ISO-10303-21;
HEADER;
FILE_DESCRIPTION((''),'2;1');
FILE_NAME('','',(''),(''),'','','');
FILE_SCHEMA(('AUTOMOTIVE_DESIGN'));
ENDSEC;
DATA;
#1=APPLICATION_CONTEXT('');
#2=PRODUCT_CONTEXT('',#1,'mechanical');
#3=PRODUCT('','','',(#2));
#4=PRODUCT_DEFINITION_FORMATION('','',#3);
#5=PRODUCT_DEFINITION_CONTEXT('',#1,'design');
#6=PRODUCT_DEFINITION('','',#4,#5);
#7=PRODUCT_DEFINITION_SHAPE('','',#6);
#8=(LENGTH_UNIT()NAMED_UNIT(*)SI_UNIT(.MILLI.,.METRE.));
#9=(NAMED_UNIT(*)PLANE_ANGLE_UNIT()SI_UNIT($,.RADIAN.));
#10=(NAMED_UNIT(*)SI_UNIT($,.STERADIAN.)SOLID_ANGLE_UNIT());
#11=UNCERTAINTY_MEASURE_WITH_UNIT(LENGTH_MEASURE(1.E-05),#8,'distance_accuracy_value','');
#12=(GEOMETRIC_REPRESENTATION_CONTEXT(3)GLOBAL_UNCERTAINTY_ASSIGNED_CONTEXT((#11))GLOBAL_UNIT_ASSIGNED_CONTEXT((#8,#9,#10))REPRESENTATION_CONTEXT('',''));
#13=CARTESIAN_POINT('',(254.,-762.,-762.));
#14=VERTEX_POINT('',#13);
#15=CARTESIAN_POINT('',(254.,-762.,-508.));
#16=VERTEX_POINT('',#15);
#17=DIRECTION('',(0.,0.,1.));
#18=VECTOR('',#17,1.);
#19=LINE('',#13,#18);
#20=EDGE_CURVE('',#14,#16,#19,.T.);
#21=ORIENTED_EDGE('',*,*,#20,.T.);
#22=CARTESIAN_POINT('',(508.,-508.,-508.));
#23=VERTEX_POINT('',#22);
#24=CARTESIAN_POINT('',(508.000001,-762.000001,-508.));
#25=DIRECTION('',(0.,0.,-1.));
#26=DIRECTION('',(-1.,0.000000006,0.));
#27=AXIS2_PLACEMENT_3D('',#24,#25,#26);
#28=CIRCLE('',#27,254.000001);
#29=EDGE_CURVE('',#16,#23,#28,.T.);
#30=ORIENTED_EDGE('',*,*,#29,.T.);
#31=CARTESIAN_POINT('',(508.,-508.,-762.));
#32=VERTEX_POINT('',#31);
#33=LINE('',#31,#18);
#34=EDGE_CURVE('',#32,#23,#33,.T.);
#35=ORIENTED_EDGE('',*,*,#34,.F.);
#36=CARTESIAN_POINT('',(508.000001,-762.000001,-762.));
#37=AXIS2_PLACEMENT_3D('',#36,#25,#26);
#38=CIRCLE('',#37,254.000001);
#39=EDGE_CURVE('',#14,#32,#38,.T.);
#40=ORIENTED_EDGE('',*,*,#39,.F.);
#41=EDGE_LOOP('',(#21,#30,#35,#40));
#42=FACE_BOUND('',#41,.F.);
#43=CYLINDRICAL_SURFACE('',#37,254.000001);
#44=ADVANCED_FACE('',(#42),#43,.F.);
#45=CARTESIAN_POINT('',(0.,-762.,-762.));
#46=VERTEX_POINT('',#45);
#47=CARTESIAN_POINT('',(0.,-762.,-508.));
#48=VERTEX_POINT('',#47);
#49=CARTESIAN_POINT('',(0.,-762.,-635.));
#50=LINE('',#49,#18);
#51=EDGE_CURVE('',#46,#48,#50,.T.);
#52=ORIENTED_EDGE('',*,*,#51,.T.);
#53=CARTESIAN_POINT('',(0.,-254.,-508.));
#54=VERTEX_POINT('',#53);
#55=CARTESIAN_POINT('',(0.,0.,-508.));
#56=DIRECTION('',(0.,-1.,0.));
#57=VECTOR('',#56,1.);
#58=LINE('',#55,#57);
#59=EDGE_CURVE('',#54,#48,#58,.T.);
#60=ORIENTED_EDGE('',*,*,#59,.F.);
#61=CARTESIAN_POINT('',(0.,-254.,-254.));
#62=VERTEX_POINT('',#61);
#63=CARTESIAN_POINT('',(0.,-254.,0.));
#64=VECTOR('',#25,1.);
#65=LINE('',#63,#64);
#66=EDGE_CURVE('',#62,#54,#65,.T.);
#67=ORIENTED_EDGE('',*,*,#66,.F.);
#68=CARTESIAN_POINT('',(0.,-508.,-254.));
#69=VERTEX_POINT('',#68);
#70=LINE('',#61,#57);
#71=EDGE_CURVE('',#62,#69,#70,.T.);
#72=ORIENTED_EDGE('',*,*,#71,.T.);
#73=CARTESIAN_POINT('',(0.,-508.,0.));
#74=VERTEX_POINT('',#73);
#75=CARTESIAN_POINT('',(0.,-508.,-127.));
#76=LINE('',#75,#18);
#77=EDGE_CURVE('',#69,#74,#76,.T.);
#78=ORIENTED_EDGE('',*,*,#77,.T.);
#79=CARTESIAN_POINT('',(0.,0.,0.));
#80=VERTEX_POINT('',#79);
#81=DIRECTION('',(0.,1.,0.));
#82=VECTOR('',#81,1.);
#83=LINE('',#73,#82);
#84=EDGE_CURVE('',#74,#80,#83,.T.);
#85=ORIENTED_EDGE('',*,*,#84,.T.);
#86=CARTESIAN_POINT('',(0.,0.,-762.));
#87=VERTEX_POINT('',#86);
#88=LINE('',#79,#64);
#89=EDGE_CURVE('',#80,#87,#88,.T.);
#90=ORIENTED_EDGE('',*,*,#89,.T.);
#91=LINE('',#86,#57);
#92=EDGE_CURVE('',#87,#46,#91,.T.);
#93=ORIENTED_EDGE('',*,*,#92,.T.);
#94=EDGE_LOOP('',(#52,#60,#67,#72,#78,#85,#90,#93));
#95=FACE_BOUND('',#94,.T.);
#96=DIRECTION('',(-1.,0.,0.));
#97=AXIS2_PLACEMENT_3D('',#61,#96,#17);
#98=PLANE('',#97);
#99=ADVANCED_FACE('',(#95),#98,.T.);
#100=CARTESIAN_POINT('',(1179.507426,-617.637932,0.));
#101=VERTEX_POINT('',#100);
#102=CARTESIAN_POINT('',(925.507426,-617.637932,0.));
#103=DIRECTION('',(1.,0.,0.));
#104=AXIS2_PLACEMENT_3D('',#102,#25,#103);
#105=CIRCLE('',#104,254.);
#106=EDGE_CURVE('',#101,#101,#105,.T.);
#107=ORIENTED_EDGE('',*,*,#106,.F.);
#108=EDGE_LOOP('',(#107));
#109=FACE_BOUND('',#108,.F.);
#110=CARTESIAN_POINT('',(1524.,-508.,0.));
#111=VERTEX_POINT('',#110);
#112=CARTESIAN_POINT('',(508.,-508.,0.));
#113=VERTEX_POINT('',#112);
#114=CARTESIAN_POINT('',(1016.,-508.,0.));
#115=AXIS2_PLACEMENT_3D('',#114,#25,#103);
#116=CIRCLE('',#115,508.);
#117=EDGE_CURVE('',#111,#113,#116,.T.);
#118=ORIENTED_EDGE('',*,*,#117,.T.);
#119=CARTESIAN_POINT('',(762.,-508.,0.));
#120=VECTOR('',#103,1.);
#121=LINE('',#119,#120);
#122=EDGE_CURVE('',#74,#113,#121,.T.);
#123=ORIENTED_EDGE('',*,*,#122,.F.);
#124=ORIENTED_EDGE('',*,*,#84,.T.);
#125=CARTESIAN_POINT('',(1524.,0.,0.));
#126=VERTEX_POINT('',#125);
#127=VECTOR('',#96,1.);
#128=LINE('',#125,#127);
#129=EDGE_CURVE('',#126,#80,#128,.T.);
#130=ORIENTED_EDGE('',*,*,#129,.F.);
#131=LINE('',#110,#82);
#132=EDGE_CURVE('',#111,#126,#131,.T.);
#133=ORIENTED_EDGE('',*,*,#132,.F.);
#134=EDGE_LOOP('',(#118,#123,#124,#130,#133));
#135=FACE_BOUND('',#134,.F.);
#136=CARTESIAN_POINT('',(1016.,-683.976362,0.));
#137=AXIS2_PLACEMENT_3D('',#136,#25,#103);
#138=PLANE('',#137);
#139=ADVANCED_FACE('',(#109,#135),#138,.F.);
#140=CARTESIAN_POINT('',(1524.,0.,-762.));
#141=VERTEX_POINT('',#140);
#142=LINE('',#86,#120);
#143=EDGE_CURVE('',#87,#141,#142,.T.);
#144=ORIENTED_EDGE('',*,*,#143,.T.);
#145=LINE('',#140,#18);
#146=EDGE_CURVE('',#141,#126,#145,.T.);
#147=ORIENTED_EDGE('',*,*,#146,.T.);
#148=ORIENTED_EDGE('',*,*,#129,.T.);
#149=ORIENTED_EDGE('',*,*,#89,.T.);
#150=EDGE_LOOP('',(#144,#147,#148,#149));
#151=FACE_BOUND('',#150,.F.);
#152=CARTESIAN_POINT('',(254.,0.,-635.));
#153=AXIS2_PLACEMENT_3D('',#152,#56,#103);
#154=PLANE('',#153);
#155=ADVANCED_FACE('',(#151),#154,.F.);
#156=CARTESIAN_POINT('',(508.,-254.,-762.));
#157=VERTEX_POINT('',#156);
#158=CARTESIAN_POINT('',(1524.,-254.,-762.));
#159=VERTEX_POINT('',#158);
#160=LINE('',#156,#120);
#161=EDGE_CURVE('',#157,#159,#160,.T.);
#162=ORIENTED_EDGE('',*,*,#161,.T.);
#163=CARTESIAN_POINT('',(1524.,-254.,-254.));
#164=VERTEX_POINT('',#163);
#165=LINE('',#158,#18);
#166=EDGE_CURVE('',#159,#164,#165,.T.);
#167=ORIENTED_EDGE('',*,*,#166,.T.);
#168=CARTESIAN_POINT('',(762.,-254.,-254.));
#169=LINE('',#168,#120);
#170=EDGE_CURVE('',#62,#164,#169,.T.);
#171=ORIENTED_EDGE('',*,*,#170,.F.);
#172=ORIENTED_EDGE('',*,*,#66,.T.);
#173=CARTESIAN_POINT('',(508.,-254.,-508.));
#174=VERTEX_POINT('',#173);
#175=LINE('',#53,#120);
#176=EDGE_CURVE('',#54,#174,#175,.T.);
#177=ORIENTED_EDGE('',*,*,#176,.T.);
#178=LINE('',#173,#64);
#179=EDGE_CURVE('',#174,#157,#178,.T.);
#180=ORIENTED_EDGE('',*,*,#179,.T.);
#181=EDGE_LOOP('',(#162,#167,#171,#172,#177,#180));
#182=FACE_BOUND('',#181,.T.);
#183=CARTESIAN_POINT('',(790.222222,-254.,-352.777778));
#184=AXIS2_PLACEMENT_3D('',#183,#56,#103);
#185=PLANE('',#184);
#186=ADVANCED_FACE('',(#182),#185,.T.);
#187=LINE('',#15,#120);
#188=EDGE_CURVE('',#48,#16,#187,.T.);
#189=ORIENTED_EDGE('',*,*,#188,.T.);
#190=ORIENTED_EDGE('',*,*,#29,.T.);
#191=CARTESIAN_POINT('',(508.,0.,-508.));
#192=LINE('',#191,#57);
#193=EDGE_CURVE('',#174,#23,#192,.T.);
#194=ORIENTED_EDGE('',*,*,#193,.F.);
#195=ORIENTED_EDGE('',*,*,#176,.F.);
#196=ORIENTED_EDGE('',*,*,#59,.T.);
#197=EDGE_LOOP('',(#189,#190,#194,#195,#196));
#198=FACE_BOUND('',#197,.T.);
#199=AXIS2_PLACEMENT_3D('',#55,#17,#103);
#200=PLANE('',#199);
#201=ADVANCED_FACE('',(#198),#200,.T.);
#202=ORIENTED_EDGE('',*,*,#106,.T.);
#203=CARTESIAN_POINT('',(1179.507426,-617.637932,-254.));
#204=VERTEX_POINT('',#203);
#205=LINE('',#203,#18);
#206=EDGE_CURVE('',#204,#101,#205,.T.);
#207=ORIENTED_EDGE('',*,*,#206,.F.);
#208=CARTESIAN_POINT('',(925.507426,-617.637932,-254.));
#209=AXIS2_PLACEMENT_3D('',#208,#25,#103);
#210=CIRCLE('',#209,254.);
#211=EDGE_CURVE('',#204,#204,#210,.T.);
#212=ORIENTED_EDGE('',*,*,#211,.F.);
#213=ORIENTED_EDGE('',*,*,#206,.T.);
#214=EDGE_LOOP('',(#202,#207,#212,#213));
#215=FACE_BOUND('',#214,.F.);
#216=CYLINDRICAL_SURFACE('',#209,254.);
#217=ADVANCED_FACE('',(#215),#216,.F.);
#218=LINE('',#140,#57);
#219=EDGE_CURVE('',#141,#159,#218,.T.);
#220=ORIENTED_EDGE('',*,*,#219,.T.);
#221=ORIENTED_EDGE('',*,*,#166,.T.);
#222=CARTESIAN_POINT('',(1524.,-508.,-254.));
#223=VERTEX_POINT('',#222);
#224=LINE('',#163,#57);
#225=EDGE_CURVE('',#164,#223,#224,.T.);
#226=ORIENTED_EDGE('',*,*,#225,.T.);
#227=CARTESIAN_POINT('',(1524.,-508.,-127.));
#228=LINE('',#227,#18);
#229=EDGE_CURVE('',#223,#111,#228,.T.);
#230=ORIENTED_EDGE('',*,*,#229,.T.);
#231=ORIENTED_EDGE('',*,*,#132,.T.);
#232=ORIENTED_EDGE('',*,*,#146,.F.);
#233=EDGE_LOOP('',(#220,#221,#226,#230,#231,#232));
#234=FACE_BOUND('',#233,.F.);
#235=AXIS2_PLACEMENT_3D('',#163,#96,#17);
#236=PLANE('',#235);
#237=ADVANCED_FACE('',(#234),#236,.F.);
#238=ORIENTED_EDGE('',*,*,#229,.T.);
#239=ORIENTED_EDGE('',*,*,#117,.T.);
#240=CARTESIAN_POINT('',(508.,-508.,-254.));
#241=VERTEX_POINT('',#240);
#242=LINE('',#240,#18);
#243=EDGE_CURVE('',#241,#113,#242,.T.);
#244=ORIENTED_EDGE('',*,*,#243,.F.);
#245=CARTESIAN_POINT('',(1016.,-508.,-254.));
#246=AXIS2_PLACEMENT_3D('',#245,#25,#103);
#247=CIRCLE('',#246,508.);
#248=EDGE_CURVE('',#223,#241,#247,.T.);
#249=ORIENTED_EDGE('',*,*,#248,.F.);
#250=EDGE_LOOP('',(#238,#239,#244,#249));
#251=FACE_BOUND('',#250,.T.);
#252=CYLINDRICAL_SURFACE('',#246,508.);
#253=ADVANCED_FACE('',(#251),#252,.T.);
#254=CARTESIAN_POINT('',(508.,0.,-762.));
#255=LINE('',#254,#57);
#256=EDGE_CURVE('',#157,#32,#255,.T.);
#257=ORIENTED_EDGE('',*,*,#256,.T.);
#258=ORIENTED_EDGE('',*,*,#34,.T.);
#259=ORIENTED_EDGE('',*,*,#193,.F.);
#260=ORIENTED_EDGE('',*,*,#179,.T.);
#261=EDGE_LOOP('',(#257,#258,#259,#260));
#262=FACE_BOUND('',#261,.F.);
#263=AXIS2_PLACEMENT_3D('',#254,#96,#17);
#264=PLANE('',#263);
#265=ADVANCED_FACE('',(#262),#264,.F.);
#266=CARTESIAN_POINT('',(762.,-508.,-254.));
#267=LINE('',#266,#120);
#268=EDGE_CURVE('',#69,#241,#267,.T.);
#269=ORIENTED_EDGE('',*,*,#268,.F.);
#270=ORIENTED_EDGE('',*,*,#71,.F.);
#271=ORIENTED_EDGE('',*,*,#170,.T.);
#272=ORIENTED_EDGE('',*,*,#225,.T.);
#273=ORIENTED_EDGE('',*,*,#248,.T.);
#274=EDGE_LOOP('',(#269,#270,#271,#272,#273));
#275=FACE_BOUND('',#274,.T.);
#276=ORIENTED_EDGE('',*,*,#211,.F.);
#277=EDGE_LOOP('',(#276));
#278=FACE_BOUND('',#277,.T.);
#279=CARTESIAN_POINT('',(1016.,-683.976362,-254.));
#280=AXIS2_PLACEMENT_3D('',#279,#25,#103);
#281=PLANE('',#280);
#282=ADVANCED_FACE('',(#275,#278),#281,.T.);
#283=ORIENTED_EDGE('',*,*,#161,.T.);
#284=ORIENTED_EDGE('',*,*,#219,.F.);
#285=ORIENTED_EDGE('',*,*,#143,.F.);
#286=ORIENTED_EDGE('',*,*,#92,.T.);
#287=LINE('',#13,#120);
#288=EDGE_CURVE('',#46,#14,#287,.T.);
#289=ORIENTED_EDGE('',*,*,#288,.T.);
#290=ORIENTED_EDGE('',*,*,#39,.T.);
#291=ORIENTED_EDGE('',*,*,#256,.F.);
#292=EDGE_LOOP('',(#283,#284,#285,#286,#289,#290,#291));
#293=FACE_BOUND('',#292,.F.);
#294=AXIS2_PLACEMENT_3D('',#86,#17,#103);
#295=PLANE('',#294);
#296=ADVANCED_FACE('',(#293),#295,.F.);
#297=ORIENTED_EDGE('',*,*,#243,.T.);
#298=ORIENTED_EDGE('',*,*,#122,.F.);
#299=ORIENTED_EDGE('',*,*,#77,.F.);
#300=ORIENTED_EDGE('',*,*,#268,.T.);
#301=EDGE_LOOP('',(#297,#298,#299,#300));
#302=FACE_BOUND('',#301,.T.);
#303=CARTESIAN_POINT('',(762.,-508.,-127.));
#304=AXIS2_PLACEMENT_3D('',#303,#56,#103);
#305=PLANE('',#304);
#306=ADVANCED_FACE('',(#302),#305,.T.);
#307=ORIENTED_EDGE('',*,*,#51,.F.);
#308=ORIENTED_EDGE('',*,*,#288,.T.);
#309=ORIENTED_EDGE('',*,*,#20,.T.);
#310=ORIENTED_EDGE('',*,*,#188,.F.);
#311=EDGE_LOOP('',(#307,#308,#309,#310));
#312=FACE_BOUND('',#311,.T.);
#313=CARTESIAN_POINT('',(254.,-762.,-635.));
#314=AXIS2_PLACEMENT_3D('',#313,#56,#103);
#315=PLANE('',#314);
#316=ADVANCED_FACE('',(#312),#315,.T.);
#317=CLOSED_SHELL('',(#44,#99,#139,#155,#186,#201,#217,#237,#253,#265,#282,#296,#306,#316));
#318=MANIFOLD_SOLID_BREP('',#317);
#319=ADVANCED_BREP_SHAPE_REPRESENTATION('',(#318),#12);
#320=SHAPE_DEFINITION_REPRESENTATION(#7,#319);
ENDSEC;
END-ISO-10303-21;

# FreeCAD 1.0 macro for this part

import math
import FreeCAD as App
import Part
import Sketcher

V = App.Vector
Q = App.Units.Quantity

doc = App.newDocument("Part")
body = doc.addObject("PartDesign::Body", "Body")

sketch1 = body.newObject("Sketcher::SketchObject", "Sketch")
sketch1.AttachmentSupport = (doc.getObject("XZ_Plane"), [""])
sketch1.MapMode = "FlatFace"
sketch1.addGeometry([
    Part.LineSegment(V(0, 0, 0), V(0, -508, 0)),
    Part.LineSegment(V(0, -508, 0), V(508, -508, 0)),
    Part.LineSegment(V(508, -508, 0), V(508, -762, 0)),
    Part.LineSegment(V(508, -762, 0), V(1524, -762, 0)),
    Part.LineSegment(V(1524, -762, 0), V(1524, 0, 0)),
    Part.LineSegment(V(1524, 0, 0), V(0, 0, 0)),
], False)
sketch1.addConstraint([
    Sketcher.Constraint("Coincident", 0, 2, 1, 1),
    Sketcher.Constraint("Coincident", 1, 2, 2, 1),
    Sketcher.Constraint("Coincident", 2, 2, 3, 1),
    Sketcher.Constraint("Coincident", 3, 2, 4, 1),
    Sketcher.Constraint("Coincident", 4, 2, 5, 1),
    Sketcher.Constraint("Coincident", 5, 2, 0, 1),
    Sketcher.Constraint("Vertical", 0),
    Sketcher.Constraint("Horizontal", 1),
    Sketcher.Constraint("Vertical", 2),
    Sketcher.Constraint("Horizontal", 3),
    Sketcher.Constraint("Vertical", 4),
    Sketcher.Constraint("Horizontal", 5),
    Sketcher.Constraint("Coincident", 5, 2, -1, 1),
    Sketcher.Constraint("Equal", 1, 0),
    Sketcher.Constraint("DistanceX", 1, 1, 1, 2, Q("20 in")),
    Sketcher.Constraint("DistanceX", 3, 1, 3, 2, Q("40 in")),
    Sketcher.Constraint("DistanceY", 2, 2, 2, 1, Q("10 in")),
])
pad1 = body.newObject("PartDesign::Pad", "Pad")
pad1.Profile = sketch1
pad1.Length = Q("10 in")

sketch2 = body.newObject("Sketcher::SketchObject", "Sketch001")
sketch2.AttachmentSupport = (doc.getObject("XZ_Plane"), [""])
sketch2.MapMode = "FlatFace"
sketch2.addGeometry([
    Part.LineSegment(V(0, -508, 0), V(0, -762, 0)),
    Part.LineSegment(V(0, -762, 0), V(508, -762, 0)),
    Part.LineSegment(V(508, -762, 0), V(508, -508, 0)),
    Part.LineSegment(V(508, -508, 0), V(0, -508, 0)),
], False)
sketch2.addConstraint([
    Sketcher.Constraint("Coincident", 0, 2, 1, 1),
    Sketcher.Constraint("Coincident", 1, 2, 2, 1),
    Sketcher.Constraint("Coincident", 2, 2, 3, 1),
    Sketcher.Constraint("Coincident", 3, 2, 0, 1),
    Sketcher.Constraint("Vertical", 0),
    Sketcher.Constraint("Horizontal", 1),
    Sketcher.Constraint("Vertical", 2),
    Sketcher.Constraint("Horizontal", 3),
    Sketcher.Constraint("PointOnObject", 0, 2, -2),
    Sketcher.Constraint("DistanceX", 1, 1, 1, 2, Q("20 in")),
    Sketcher.Constraint("DistanceY", 0, 2, 0, 1, Q("10 in")),
    Sketcher.Constraint("DistanceY", 0, 2, -1, 1, Q("30 in")),
])
pad2 = body.newObject("PartDesign::Pad", "Pad001")
pad2.Profile = sketch2
pad2.Length = Q("30 in")

sketch3 = body.newObject("Sketcher::SketchObject", "Sketch002")
sketch3.AttachmentSupport = (doc.getObject("XY_Plane"), [""])
sketch3.MapMode = "FlatFace"
sketch3.AttachmentOffset = App.Placement(V(0, 0, -30 * 25.4), App.Rotation())
sketch3.addGeometry([
    Part.ArcOfCircle(Part.Circle(V(508, -762, 0), V(0, 0, 1), 254), math.radians(90), math.radians(180)),
    Part.LineSegment(V(508, -508, 0), V(508, -762, 0)),
    Part.LineSegment(V(508, -762, 0), V(254, -762, 0)),
], False)
sketch3.addConstraint([
    Sketcher.Constraint("Coincident", 0, 1, 1, 1),
    Sketcher.Constraint("Coincident", 1, 2, 2, 1),
    Sketcher.Constraint("Coincident", 2, 2, 0, 2),
    Sketcher.Constraint("Vertical", 1),
    Sketcher.Constraint("Horizontal", 2),
    Sketcher.Constraint("Coincident", 1, 2, 0, 3),
    Sketcher.Constraint("Radius", 0, Q("10.0000001 in")),
    Sketcher.Constraint("DistanceX", -1, 1, 0, 3, Q("20.0000001 in")),
    Sketcher.Constraint("DistanceY", 0, 3, -1, 1, Q("30.0000001 in")),
])
pocket1 = body.newObject("PartDesign::Pocket", "Pocket")
pocket1.Profile = sketch3
pocket1.Length = Q("10 in")
pocket1.Reversed = True

sketch4 = body.newObject("Sketcher::SketchObject", "Sketch003")
sketch4.AttachmentSupport = (doc.getObject("XZ_Plane"), [""])
sketch4.MapMode = "FlatFace"
sketch4.AttachmentOffset = App.Placement(V(0, 0, 10 * 25.4), App.Rotation())
sketch4.addGeometry([
    Part.LineSegment(V(0, 0, 0), V(0, -254, 0)),
    Part.LineSegment(V(0, -254, 0), V(1524, -254, 0)),
    Part.LineSegment(V(1524, -254, 0), V(1524, 0, 0)),
    Part.LineSegment(V(1524, 0, 0), V(0, 0, 0)),
], False)
sketch4.addConstraint([
    Sketcher.Constraint("Coincident", 0, 2, 1, 1),
    Sketcher.Constraint("Coincident", 1, 2, 2, 1),
    Sketcher.Constraint("Coincident", 2, 2, 3, 1),
    Sketcher.Constraint("Coincident", 3, 2, 0, 1),
    Sketcher.Constraint("Vertical", 0),
    Sketcher.Constraint("Horizontal", 1),
    Sketcher.Constraint("Vertical", 2),
    Sketcher.Constraint("Horizontal", 3),
    Sketcher.Constraint("Coincident", 3, 2, -1, 1),
    Sketcher.Constraint("DistanceX", 1, 1, 1, 2, Q("60 in")),
    Sketcher.Constraint("DistanceY", 0, 2, 0, 1, Q("10 in")),
])
pad3 = body.newObject("PartDesign::Pad", "Pad002")
pad3.Profile = sketch4
pad3.Length = Q("10 in")

sketch5 = body.newObject("Sketcher::SketchObject", "Sketch004")
sketch5.AttachmentSupport = (doc.getObject("XY_Plane"), [""])
sketch5.MapMode = "FlatFace"
sketch5.AttachmentOffset = App.Placement(V(0, 0, -10 * 25.4), App.Rotation())
sketch5.addGeometry([
    Part.LineSegment(V(508, -508, 0), V(1524, -508, 0)),
    Part.ArcOfCircle(Part.Circle(V(1016, -508, 0), V(0, 0, 1), 508), math.radians(180), math.radians(360)),
], False)
sketch5.addConstraint([
    Sketcher.Constraint("Coincident", 0, 1, 1, 1),
    Sketcher.Constraint("Coincident", 1, 2, 0, 2),
    Sketcher.Constraint("Horizontal", 0),
    Sketcher.Constraint("Horizontal", 1, 3, 0, 1),
    Sketcher.Constraint("Radius", 1, Q("20 in")),
    Sketcher.Constraint("DistanceX", -1, 1, 1, 3, Q("40 in")),
    Sketcher.Constraint("DistanceY", 1, 3, -1, 1, Q("20 in")),
])
pad4 = body.newObject("PartDesign::Pad", "Pad003")
pad4.Profile = sketch5
pad4.Length = Q("10 in")

sketch6 = body.newObject("Sketcher::SketchObject", "Sketch005")
sketch6.AttachmentSupport = (doc.getObject("XY_Plane"), [""])
sketch6.MapMode = "FlatFace"
sketch6.AttachmentOffset = App.Placement(V(0, 0, -10 * 25.4), App.Rotation())
sketch6.addGeometry(Part.Circle(V(926, -618, 0), V(0, 0, 1), 254), False)
sketch6.addConstraint([
    Sketcher.Constraint("Diameter", 0, Q("20 in")),
    Sketcher.Constraint("DistanceY", 0, 3, -1, 1, 617.637932),
    Sketcher.Constraint("DistanceX", -1, 1, 0, 3, 925.507426),
])
pocket2 = body.newObject("PartDesign::Pocket", "Pocket001")
pocket2.Profile = sketch6
pocket2.Length = Q("10 in")
pocket2.Reversed = True

doc.recompute()
